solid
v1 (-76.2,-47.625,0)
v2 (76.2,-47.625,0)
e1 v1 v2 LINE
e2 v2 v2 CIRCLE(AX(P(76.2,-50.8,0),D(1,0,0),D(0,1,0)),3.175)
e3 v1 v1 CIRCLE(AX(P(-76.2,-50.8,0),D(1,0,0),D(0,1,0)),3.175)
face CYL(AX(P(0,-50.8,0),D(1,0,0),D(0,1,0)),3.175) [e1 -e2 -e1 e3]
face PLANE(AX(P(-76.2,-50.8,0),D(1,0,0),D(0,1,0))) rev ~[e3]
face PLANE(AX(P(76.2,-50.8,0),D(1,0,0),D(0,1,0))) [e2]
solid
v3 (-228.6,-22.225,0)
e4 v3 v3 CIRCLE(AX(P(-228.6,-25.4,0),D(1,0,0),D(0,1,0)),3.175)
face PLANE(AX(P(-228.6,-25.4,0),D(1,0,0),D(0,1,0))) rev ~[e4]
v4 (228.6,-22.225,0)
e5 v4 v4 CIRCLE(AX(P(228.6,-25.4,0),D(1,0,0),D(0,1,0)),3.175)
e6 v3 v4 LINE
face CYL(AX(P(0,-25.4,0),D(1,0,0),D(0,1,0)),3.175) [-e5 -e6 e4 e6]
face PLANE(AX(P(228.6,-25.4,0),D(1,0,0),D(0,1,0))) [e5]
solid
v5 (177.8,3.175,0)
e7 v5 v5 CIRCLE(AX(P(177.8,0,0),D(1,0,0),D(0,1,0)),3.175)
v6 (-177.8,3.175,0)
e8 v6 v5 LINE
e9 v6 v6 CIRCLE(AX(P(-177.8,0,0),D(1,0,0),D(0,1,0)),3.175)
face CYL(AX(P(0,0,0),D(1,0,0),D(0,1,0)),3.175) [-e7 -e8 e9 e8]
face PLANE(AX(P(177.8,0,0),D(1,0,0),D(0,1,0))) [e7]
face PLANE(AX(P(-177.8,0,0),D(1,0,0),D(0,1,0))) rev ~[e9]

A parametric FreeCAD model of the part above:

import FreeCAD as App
import Part
import Sketcher

V = App.Vector
Q = App.Units.Quantity

doc = App.newDocument("Part")
body = doc.addObject("PartDesign::Body", "Body")

sketch1 = body.newObject("Sketcher::SketchObject", "Sketch")
sketch1.AttachmentSupport = (doc.getObject("YZ_Plane"), [""])
sketch1.MapMode = "FlatFace"
sketch1.addGeometry(Part.Circle(V(0, 0, 0), V(0, 0, 1), 3.2), False)
sketch1.addConstraint([
    Sketcher.Constraint("Coincident", 0, 3, -1, 1),
    Sketcher.Constraint("Diameter", 0, Q("0.25 in")),
])
pad1 = body.newObject("PartDesign::Pad", "Pad")
pad1.Profile = sketch1
pad1.Length = Q("14 in")
pad1.Midplane = True
body2 = doc.addObject("PartDesign::Body", "Body001")

sketch2 = body2.newObject("Sketcher::SketchObject", "Sketch001")
sketch2.AttachmentSupport = (doc.getObject("YZ_Plane001"), [""])
sketch2.MapMode = "FlatFace"
sketch2.addGeometry(Part.Circle(V(-25.4, 0, 0), V(0, 0, 1), 3.2), False)
sketch2.addConstraint([
    Sketcher.Constraint("PointOnObject", 0, 3, -1),
    Sketcher.Constraint("Diameter", 0, Q("0.25 in")),
    Sketcher.Constraint("DistanceX", 0, 3, -1, 1, Q("1 in")),
])
pad2 = body2.newObject("PartDesign::Pad", "Pad001")
pad2.Profile = sketch2
pad2.Length = Q("18 in")
pad2.Midplane = True
body3 = doc.addObject("PartDesign::Body", "Body002")

sketch3 = body3.newObject("Sketcher::SketchObject", "Sketch002")
sketch3.AttachmentSupport = (doc.getObject("YZ_Plane002"), [""])
sketch3.MapMode = "FlatFace"
sketch3.addGeometry(Part.Circle(V(-50.8, 0, 0), V(0, 0, 1), 3.2), False)
sketch3.addConstraint([
    Sketcher.Constraint("PointOnObject", 0, 3, -1),
    Sketcher.Constraint("Diameter", 0, Q("0.25 in")),
    Sketcher.Constraint("DistanceX", 0, 3, -1, 1, Q("2 in")),
])
pad3 = body3.newObject("PartDesign::Pad", "Pad002")
pad3.Profile = sketch3
pad3.Length = Q("6 in")
pad3.Midplane = True

doc.recompute()
